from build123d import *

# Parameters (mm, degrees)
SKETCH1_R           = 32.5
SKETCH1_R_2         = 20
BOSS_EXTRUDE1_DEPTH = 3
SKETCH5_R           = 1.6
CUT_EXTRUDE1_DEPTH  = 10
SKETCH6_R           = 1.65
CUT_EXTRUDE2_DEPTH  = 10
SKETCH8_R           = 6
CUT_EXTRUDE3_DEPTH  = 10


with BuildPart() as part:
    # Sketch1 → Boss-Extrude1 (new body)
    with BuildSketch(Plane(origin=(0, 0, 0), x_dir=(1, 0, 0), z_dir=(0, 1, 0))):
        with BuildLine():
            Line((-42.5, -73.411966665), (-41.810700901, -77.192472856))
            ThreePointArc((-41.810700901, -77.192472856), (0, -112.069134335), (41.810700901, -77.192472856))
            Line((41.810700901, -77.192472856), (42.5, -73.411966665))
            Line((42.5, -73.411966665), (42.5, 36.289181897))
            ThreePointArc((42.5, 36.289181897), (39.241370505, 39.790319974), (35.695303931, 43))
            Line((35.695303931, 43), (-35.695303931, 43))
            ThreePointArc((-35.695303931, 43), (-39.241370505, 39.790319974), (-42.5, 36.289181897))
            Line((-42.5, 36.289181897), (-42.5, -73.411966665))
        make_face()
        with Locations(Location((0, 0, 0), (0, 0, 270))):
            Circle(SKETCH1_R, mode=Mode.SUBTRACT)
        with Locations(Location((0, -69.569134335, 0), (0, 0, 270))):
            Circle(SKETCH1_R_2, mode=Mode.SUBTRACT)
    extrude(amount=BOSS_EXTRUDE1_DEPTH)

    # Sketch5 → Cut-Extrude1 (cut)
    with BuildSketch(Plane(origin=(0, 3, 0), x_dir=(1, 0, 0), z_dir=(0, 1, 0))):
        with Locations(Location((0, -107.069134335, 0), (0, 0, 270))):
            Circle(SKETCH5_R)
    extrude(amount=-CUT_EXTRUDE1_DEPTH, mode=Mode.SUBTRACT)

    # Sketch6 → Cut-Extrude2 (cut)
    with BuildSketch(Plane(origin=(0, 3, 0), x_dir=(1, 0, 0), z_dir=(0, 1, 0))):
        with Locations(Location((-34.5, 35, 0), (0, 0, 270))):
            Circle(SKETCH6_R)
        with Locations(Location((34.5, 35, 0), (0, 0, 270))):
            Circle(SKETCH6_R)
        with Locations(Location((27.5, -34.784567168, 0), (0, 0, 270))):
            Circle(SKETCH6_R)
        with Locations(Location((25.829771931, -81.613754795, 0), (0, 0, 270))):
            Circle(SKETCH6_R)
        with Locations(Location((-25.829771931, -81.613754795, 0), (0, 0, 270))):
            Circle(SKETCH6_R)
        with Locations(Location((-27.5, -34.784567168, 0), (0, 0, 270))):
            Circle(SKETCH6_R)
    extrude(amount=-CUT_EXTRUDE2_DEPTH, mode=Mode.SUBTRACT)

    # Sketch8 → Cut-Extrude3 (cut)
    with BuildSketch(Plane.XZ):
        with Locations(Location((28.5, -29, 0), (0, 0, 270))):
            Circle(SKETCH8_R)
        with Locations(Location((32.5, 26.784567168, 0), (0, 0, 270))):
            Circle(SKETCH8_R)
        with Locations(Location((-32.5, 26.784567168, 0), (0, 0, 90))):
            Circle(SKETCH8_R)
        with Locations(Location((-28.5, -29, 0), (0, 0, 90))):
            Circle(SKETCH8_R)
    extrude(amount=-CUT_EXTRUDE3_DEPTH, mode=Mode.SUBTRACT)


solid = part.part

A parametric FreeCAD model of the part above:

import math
import FreeCAD as App
import Part
import Sketcher
from FreeCAD import Vector

doc = App.newDocument("Part")
body = doc.addObject("PartDesign::Body", "Body")

sketch1 = doc.addObject("Sketcher::SketchObject", "Sketch")
body.addObject(sketch1)
sketch1.AttachmentSupport = (doc.XZ_Plane, [""])
sketch1.MapMode = "FlatFace"
sketch1.addGeometry([
    Part.LineSegment(Vector(-42.5, 73.4, 0), Vector(-41.8, 77.2, 0)),
    Part.ArcOfCircle(Part.Circle(Vector(0, 69.6, 0), Vector(0, 0, 1), 42.5), math.radians(10), math.radians(170)),
    Part.LineSegment(Vector(41.8, 77.2, 0), Vector(42.5, 73.4, 0)),
    Part.LineSegment(Vector(42.5, 73.4, 0), Vector(42.5, -36.3, 0)),
    Part.ArcOfCircle(Part.Circle(Vector(0, 0, 0), Vector(0, 0, 1), 55.9), math.radians(-50.3), math.radians(-40.49)),
    Part.LineSegment(Vector(35.7, -43, 0), Vector(-35.7, -43, 0)),
    Part.ArcOfCircle(Part.Circle(Vector(0, 0, 0), Vector(0, 0, 1), 55.9), math.radians(-139.51), math.radians(-129.7)),
    Part.LineSegment(Vector(-42.5, -36.3, 0), Vector(-42.5, 73.4, 0)),
    Part.Circle(Vector(0, 69.6, 0), Vector(0, 0, 1), 20),
    Part.Circle(Vector(0, 0, 0), Vector(0, 0, 1), 32.5),
], False)
sketch1.addConstraint([
    Sketcher.Constraint("Tangent", 0, 2, 1, 2),
    Sketcher.Constraint("Tangent", 1, 1, 2, 1),
    Sketcher.Constraint("Coincident", 2, 2, 3, 1),
    Sketcher.Constraint("Coincident", 3, 2, 4, 2),
    Sketcher.Constraint("Coincident", 4, 1, 5, 1),
    Sketcher.Constraint("Coincident", 5, 2, 6, 2),
    Sketcher.Constraint("Coincident", 6, 1, 7, 1),
    Sketcher.Constraint("Coincident", 7, 2, 0, 1),
    Sketcher.Constraint("Vertical", 3),
    Sketcher.Constraint("Horizontal", 5),
    Sketcher.Constraint("Vertical", 7),
    Sketcher.Constraint("Coincident", 4, 3, -1, 1),
    Sketcher.Constraint("Coincident", 6, 3, -1, 1),
    Sketcher.Constraint("Coincident", 9, 3, -1, 1),
    Sketcher.Constraint("Coincident", 8, 3, 1, 3),
    Sketcher.Constraint("Equal", 4, 6),
    Sketcher.Constraint("Symmetric", 0, 2, 1, 1, -2),
    Sketcher.Constraint("Horizontal", 3, 2, 6, 1),
    Sketcher.Constraint("Diameter", 8, 40.0),
    Sketcher.Constraint("Diameter", 9, 65.0),
    Sketcher.Constraint("Radius", 1, 42.5),
    Sketcher.Constraint("DistanceY", 4, 1, -1, 1, 43.0),
    Sketcher.Constraint("DistanceX", -1, 1, 2, 2, 42.5),
    Sketcher.Constraint("Radius", 4, 55.885192),
    Sketcher.Constraint("DistanceY", 3, 2, 3, 1, 109.701149),
    Sketcher.Constraint("DistanceX", 0, 2, -1, 1, 41.810701),
])
pad1 = doc.addObject("PartDesign::Pad", "Pad")
body.addObject(pad1)
pad1.Profile = sketch1
pad1.Length = 3
pad1.Reversed = True

sketch2 = doc.addObject("Sketcher::SketchObject", "Sketch001")
body.addObject(sketch2)
sketch2.AttachmentSupport = (doc.XZ_Plane, [""])
sketch2.MapMode = "FlatFace"
sketch2.AttachmentOffset = App.Placement(Vector(0, 0, -3), App.Rotation())
sketch2.addGeometry(Part.Circle(Vector(0, 107.1, 0), Vector(0, 0, 1), 1.6), False)
sketch2.addConstraint([
    Sketcher.Constraint("PointOnObject", 0, 3, -2),
    Sketcher.Constraint("Diameter", 0, 3.2),
    Sketcher.Constraint("DistanceY", -1, 1, 0, 3, 107.069134),
])
pocket1 = doc.addObject("PartDesign::Pocket", "Pocket")
body.addObject(pocket1)
pocket1.Profile = sketch2
pocket1.Length = 10
pocket1.Reversed = True

sketch3 = doc.addObject("Sketcher::SketchObject", "Sketch002")
body.addObject(sketch3)
sketch3.AttachmentSupport = (doc.XZ_Plane, [""])
sketch3.MapMode = "FlatFace"
sketch3.AttachmentOffset = App.Placement(Vector(0, 0, -3), App.Rotation())
sketch3.addGeometry([
    Part.Circle(Vector(-34.5, -35, 0), Vector(0, 0, 1), 1.6),
    Part.Circle(Vector(34.5, -35, 0), Vector(0, 0, 1), 1.6),
    Part.Circle(Vector(27.5, 34.8, 0), Vector(0, 0, 1), 1.6),
    Part.Circle(Vector(25.8, 81.6, 0), Vector(0, 0, 1), 1.6),
    Part.Circle(Vector(-25.8, 81.6, 0), Vector(0, 0, 1), 1.6),
    Part.Circle(Vector(-27.5, 34.8, 0), Vector(0, 0, 1), 1.6),
], False)
sketch3.addConstraint([
    Sketcher.Constraint("Equal", 0, 1),
    Sketcher.Constraint("Equal", 1, 2),
    Sketcher.Constraint("Equal", 2, 3),
    Sketcher.Constraint("Equal", 3, 4),
    Sketcher.Constraint("Equal", 4, 5),
    Sketcher.Constraint("Symmetric", 0, 3, 1, 3, -2),
    Sketcher.Constraint("Symmetric", 3, 3, 4, 3, -2),
    Sketcher.Constraint("Symmetric", 2, 3, 5, 3, -2),
    Sketcher.Constraint("Diameter", 0, 3.3),
    Sketcher.Constraint("DistanceY", 0, 3, -1, 1, 35.0),
    Sketcher.Constraint("DistanceX", 0, 3, 1, 3, 69.0),
    Sketcher.Constraint("DistanceX", 2, 3, 1, 3, 7.0),
    Sketcher.Constraint("DistanceX", -1, 1, 3, 3, 25.829772),
    Sketcher.Constraint("DistanceY", -1, 1, 2, 3, 34.784567),
    Sketcher.Constraint("DistanceY", -1, 1, 3, 3, 81.613755),
])
pocket2 = doc.addObject("PartDesign::Pocket", "Pocket001")
body.addObject(pocket2)
pocket2.Profile = sketch3
pocket2.Length = 10
pocket2.Reversed = True

sketch4 = doc.addObject("Sketcher::SketchObject", "Sketch003")
body.addObject(sketch4)
sketch4.AttachmentSupport = (doc.XZ_Plane, [""])
sketch4.MapMode = "FlatFace"
sketch4.addGeometry([
    Part.Circle(Vector(28, -29, 0), Vector(0, 0, 1), 6),
    Part.Circle(Vector(32, 27, 0), Vector(0, 0, 1), 6),
    Part.Circle(Vector(-32, 27, 0), Vector(0, 0, 1), 6),
    Part.Circle(Vector(-28, -29, 0), Vector(0, 0, 1), 6),
], False)
sketch4.addConstraint([
    Sketcher.Constraint("Equal", 0, 1),
    Sketcher.Constraint("Equal", 1, 2),
    Sketcher.Constraint("Equal", 2, 3),
    Sketcher.Constraint("Symmetric", 1, 3, 2, 3, -2),
    Sketcher.Constraint("Symmetric", 0, 3, 3, 3, -2),
    Sketcher.Constraint("Diameter", 0, 12.0),
    Sketcher.Constraint("DistanceY", 0, 3, -1, 1, 29.0),
    Sketcher.Constraint("DistanceX", 0, 3, 1, 3, 4.0),
    Sketcher.Constraint("DistanceX", 2, 3, 1, 3, 65.0),
    Sketcher.Constraint("DistanceY", -1, 1, 1, 3, 26.784567),
])
pocket3 = doc.addObject("PartDesign::Pocket", "Pocket002")
body.addObject(pocket3)
pocket3.Profile = sketch4
pocket3.Length = 10

doc.recompute()
